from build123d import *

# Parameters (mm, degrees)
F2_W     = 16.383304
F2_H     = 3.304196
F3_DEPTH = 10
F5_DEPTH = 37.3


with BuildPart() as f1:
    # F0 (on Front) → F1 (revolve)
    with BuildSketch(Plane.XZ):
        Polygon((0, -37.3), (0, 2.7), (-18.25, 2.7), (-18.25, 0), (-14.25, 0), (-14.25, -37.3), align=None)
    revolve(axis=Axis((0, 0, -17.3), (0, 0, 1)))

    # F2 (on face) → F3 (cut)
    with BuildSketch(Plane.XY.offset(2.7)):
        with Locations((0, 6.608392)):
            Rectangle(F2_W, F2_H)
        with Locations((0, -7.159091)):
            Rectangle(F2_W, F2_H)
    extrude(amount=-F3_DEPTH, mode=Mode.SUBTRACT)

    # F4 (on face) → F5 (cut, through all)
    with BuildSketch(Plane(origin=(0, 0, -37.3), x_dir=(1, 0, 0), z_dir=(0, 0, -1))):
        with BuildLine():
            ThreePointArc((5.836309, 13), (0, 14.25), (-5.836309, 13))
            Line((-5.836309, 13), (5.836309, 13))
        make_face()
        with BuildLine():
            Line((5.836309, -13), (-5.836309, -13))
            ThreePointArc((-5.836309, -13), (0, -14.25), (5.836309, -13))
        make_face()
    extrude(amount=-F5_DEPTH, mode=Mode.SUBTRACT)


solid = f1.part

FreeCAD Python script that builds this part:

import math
import FreeCAD as App
import Part
import Sketcher
from FreeCAD import Vector


def add_polygon(sketch, points):
    """Adds a closed chain of lines whose ends are joined by coincident constraints."""
    first, n = sketch.GeometryCount, len(points)
    for a, b in zip(points, points[1:] + points[:1]):
        sketch.addGeometry(Part.LineSegment(App.Vector(*a, 0), App.Vector(*b, 0)), False)
    for i in range(n):
        sketch.addConstraint(Sketcher.Constraint("Coincident", first + i, 2, first + (i + 1) % n, 1))

doc = App.newDocument("Part")
params = doc.addObject("Spreadsheet::Sheet", "Params")
for row, (alias, value) in enumerate([
    ("sketch1_width", "4 mm"),
    ("sketch1_height", "40 mm"),
    ("sketch1_height2", "2.7 mm"),
    ("sketch1_width2", "18.25 mm"),
    ("revolution_angle", "360 deg"),
    ("pocket1_length", "10 mm"),
    ("sketch3_radius", "14.250001 mm"),
    ("pocket2_length", "37.3 mm"),
], start=1):
    params.set(f"A{row}", alias)
    params.set(f"B{row}", "=" + value)
    params.setAlias(f"B{row}", alias)

body = doc.addObject("PartDesign::Body", "Body")

# Sketch on XZ plane
sketch1 = body.newObject("Sketcher::SketchObject", "Sketch")
sketch1.AttachmentSupport = (doc.getObject("XZ_Plane"), [""])
sketch1.MapMode = "FlatFace"
add_polygon(sketch1, [(0, -37.3), (0, 2.7), (-18.25, 2.7), (-18.25, 0), (-14.25, 0), (-14.25, -37.3)])  # lines 0-5
sketch1.addConstraint(Sketcher.Constraint("Vertical", 0))
sketch1.addConstraint(Sketcher.Constraint("Horizontal", 1))
sketch1.addConstraint(Sketcher.Constraint("Vertical", 2))
sketch1.addConstraint(Sketcher.Constraint("Horizontal", 3))
sketch1.addConstraint(Sketcher.Constraint("Vertical", 4))
sketch1.addConstraint(Sketcher.Constraint("Horizontal", 5))
sketch1.addConstraint(Sketcher.Constraint("PointOnObject", 0, 2, -2))
sketch1.addConstraint(Sketcher.Constraint("PointOnObject", 2, 2, -1))
sketch1.addConstraint(Sketcher.Constraint("DistanceX", 3, 1, 3, 2, 4.0))
sketch1.addConstraint(Sketcher.Constraint("DistanceY", 0, 1, 0, 2, 40.0))
sketch1.addConstraint(Sketcher.Constraint("DistanceY", 2, 2, 2, 1, 2.7))
sketch1.addConstraint(Sketcher.Constraint("DistanceX", 1, 2, 1, 1, 18.25))
sketch1.setExpression("Constraints[14]", "Params.sketch1_width")
sketch1.setExpression("Constraints[15]", "Params.sketch1_height")
sketch1.setExpression("Constraints[16]", "Params.sketch1_height2")
sketch1.setExpression("Constraints[17]", "Params.sketch1_width2")
revolution = body.newObject("PartDesign::Revolution", "Revolution")
revolution.Profile = sketch1
revolution.ReferenceAxis = (sketch1, ["V_Axis"])
revolution.setExpression("Angle", "Params.revolution_angle")

# Sketch on XY plane
sketch2 = body.newObject("Sketcher::SketchObject", "Sketch001")
sketch2.AttachmentSupport = (doc.getObject("XY_Plane"), [""])
sketch2.MapMode = "FlatFace"
sketch2.AttachmentOffset = App.Placement(Vector(0, 0, 2.7), App.Rotation())
add_polygon(sketch2, [(-8.191652, 8.26049), (-8.191652, 4.956294), (8.191652, 4.956294), (8.191652, 8.26049)])  # lines 0-3
add_polygon(sketch2, [(-8.191652, -5.506993), (-8.191652, -8.811189), (8.191652, -8.811189), (8.191652, -5.506993)])  # lines 4-7
sketch2.addConstraint(Sketcher.Constraint("Vertical", 0))
sketch2.addConstraint(Sketcher.Constraint("Horizontal", 1))
sketch2.addConstraint(Sketcher.Constraint("Vertical", 2))
sketch2.addConstraint(Sketcher.Constraint("Horizontal", 3))
sketch2.addConstraint(Sketcher.Constraint("Vertical", 4))
sketch2.addConstraint(Sketcher.Constraint("Horizontal", 5))
sketch2.addConstraint(Sketcher.Constraint("Vertical", 6))
sketch2.addConstraint(Sketcher.Constraint("Horizontal", 7))
sketch2.addConstraint(Sketcher.Constraint("Vertical", 3, 2, 4, 2))
sketch2.addConstraint(Sketcher.Constraint("Vertical", 2, 2, 5, 2))
sketch2.addConstraint(Sketcher.Constraint("Equal", 2, 4))
sketch2.addConstraint(Sketcher.Constraint("DistanceX", 1, 1, 1, 2, 16.383304))
sketch2.addConstraint(Sketcher.Constraint("DistanceY", 0, 2, 0, 1, 3.304196))
sketch2.addConstraint(Sketcher.Constraint("DistanceY", -1, 1, 2, 2, 8.26049))
sketch2.addConstraint(Sketcher.Constraint("DistanceY", 4, 2, -1, 1, 8.811189))
sketch2.addConstraint(Sketcher.Constraint("DistanceX", 0, 2, -1, 1, 8.191652))
pocket1 = body.newObject("PartDesign::Pocket", "Pocket")
pocket1.Profile = sketch2
pocket1.setExpression("Length", "Params.pocket1_length")

# Sketch on XY plane
sketch3 = body.newObject("Sketcher::SketchObject", "Sketch002")
sketch3.AttachmentSupport = (doc.getObject("XY_Plane"), [""])
sketch3.MapMode = "FlatFace"
sketch3.AttachmentOffset = App.Placement(Vector(0, 0, -37.3), App.Rotation())
sketch3.addGeometry(Part.ArcOfCircle(Part.Circle(Vector(0, 0.000001, 0), Vector(0, 0, 1), 14.250001), math.radians(-114.177544), math.radians(-65.822456)), False)
sketch3.addGeometry(Part.LineSegment(Vector(-5.836309, -13, 0), Vector(5.836309, -13, 0)), False)
sketch3.addGeometry(Part.LineSegment(Vector(5.836309, 13, 0), Vector(-5.836309, 13, 0)), False)
sketch3.addGeometry(Part.ArcOfCircle(Part.Circle(Vector(0, -0.000001, 0), Vector(0, 0, 1), 14.250001), math.radians(65.822456), math.radians(114.177544)), False)
sketch3.addConstraint(Sketcher.Constraint("Coincident", 0, 1, 1, 1))
sketch3.addConstraint(Sketcher.Constraint("Coincident", 1, 2, 0, 2))
sketch3.addConstraint(Sketcher.Constraint("Coincident", 2, 1, 3, 1))
sketch3.addConstraint(Sketcher.Constraint("Coincident", 3, 2, 2, 2))
sketch3.addConstraint(Sketcher.Constraint("Horizontal", 1))
sketch3.addConstraint(Sketcher.Constraint("Horizontal", 2))
sketch3.addConstraint(Sketcher.Constraint("Coincident", 0, 3, -1, 1))
sketch3.addConstraint(Sketcher.Constraint("Coincident", 3, 3, -1, 1))
sketch3.addConstraint(Sketcher.Constraint("Equal", 0, 3))
sketch3.addConstraint(Sketcher.Constraint("Vertical", 1, 2, 2, 1))
sketch3.addConstraint(Sketcher.Constraint("Radius", 0, 14.250001))
sketch3.addConstraint(Sketcher.Constraint("DistanceY", 0, 1, -1, 1, 13.0))
sketch3.setExpression("Constraints[10]", "Params.sketch3_radius")
pocket2 = body.newObject("PartDesign::Pocket", "Pocket001")
pocket2.Profile = sketch3
pocket2.setExpression("Length", "Params.pocket2_length")
pocket2.Reversed = True

doc.recompute()
